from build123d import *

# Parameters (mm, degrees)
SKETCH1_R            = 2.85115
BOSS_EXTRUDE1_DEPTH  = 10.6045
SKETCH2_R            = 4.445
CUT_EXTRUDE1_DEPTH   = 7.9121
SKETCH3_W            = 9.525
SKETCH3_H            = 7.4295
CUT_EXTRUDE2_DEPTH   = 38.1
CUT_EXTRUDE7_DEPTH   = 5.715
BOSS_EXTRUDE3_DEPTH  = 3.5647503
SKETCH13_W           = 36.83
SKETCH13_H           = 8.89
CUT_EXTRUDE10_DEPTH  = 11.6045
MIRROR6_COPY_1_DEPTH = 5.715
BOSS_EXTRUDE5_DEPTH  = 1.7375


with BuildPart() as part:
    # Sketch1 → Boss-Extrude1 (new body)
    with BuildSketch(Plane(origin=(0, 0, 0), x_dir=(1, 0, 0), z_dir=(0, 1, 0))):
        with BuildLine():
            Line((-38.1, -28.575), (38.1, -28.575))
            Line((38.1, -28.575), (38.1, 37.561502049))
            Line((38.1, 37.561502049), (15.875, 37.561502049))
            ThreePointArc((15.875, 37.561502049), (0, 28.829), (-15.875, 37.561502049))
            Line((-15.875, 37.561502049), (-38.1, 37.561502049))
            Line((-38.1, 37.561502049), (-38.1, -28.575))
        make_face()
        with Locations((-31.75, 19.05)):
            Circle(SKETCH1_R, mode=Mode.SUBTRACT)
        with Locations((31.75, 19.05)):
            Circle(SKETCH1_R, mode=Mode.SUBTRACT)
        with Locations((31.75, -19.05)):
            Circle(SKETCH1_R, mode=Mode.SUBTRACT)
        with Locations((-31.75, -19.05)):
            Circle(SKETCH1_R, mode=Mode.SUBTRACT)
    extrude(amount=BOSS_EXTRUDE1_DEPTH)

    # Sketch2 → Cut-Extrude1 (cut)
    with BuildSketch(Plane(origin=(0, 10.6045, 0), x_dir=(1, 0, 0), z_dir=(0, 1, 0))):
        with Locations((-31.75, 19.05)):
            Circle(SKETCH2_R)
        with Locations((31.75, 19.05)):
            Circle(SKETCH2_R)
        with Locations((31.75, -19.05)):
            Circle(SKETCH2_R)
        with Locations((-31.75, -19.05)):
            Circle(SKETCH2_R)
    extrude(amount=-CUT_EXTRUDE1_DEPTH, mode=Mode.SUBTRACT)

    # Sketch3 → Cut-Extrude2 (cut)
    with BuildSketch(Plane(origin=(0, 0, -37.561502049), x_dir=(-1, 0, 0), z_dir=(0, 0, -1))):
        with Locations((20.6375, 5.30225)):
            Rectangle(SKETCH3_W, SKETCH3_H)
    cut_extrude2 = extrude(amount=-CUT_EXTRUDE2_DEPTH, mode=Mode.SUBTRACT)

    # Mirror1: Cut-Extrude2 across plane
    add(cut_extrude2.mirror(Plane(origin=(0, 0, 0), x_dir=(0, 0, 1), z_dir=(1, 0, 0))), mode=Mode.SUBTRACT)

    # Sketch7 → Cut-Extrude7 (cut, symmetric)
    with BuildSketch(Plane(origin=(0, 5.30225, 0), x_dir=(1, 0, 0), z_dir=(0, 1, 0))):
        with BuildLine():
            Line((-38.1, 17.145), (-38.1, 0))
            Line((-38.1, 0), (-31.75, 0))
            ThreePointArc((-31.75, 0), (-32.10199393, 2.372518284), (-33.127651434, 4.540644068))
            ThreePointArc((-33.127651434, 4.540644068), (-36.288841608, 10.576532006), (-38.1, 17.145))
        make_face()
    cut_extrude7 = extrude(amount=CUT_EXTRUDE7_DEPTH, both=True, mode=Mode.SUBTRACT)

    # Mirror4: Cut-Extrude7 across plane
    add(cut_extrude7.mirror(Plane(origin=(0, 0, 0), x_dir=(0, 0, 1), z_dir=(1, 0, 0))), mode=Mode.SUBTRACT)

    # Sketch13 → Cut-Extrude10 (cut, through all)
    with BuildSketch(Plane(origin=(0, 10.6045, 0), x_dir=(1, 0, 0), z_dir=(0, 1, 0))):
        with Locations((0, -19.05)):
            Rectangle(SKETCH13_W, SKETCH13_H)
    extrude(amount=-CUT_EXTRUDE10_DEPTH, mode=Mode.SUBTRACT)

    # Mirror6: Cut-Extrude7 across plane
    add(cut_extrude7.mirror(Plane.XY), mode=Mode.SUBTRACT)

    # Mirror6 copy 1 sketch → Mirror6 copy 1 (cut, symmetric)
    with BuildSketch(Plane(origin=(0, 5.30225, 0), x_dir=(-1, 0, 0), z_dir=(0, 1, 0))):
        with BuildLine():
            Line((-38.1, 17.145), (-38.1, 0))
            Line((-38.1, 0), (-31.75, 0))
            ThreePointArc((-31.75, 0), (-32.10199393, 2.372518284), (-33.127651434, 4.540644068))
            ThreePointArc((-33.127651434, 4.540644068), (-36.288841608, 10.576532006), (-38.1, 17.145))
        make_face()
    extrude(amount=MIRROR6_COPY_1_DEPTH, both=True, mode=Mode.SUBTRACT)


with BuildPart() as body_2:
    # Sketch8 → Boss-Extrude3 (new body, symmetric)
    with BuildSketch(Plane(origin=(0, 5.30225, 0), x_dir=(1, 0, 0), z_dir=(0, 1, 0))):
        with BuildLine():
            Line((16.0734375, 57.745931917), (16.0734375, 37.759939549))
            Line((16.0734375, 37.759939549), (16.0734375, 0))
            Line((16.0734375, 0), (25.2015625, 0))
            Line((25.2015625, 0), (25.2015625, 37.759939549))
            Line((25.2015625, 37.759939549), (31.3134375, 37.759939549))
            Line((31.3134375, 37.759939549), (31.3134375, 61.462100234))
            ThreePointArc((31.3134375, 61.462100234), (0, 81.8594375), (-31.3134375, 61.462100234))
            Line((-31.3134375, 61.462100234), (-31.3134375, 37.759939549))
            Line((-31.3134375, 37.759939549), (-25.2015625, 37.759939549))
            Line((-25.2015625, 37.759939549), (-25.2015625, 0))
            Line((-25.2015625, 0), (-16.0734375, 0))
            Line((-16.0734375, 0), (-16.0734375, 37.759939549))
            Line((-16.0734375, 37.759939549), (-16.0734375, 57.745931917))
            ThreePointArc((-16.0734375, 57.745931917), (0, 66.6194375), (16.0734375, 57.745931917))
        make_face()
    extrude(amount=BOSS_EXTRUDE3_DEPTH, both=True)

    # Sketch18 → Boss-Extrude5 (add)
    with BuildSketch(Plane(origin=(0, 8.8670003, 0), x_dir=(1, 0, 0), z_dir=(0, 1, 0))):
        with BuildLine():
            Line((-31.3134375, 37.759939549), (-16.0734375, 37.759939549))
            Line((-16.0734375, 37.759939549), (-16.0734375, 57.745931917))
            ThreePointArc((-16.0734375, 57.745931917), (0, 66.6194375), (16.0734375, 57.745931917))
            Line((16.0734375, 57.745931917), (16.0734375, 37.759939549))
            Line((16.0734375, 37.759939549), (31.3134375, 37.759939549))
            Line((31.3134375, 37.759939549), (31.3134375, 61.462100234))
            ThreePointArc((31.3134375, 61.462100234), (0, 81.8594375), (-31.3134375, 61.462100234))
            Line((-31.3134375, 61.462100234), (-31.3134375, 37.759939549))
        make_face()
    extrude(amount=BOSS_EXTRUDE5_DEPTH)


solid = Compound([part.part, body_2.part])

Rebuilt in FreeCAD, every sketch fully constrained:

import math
import FreeCAD as App
import Part
import Sketcher

V = App.Vector
Q = App.Units.Quantity

doc = App.newDocument("Part")
body = doc.addObject("PartDesign::Body", "Body")

sketch1 = doc.addObject("Sketcher::SketchObject", "Sketch")
body.addObject(sketch1)
sketch1.AttachmentSupport = (doc.XZ_Plane, [""])
sketch1.MapMode = "FlatFace"
sketch1.addGeometry(Part.LineSegment(V(-38.1, 28.6, 0), V(38.1, 28.6, 0)), False)
sketch1.addGeometry(Part.LineSegment(V(38.1, 28.6, 0), V(38.1, -37.6, 0)), False)
sketch1.addGeometry(Part.LineSegment(V(38.1, -37.6, 0), V(15.9, -37.6, 0)), False)
sketch1.addGeometry(Part.ArcOfCircle(Part.Circle(V(0, -47.6, 0), V(0, 0, 1), 18.8), math.radians(32), math.radians(148)), False)
sketch1.addGeometry(Part.LineSegment(V(-15.9, -37.6, 0), V(-38.1, -37.6, 0)), False)
sketch1.addGeometry(Part.LineSegment(V(-38.1, -37.6, 0), V(-38.1, 28.6, 0)), False)
sketch1.addGeometry(Part.Circle(V(-31.8, 19.1, 0), V(0, 0, 1), 2.9), False)
sketch1.addGeometry(Part.Circle(V(31.8, 19.1, 0), V(0, 0, 1), 2.9), False)
sketch1.addGeometry(Part.Circle(V(-31.8, -19.1, 0), V(0, 0, 1), 2.9), False)
sketch1.addGeometry(Part.Circle(V(31.8, -19.1, 0), V(0, 0, 1), 2.9), False)
sketch1.addConstraint(Sketcher.Constraint("Coincident", 0, 2, 1, 1))
sketch1.addConstraint(Sketcher.Constraint("Coincident", 1, 2, 2, 1))
sketch1.addConstraint(Sketcher.Constraint("Coincident", 2, 2, 3, 1))
sketch1.addConstraint(Sketcher.Constraint("Coincident", 3, 2, 4, 1))
sketch1.addConstraint(Sketcher.Constraint("Coincident", 4, 2, 5, 1))
sketch1.addConstraint(Sketcher.Constraint("Coincident", 5, 2, 0, 1))
sketch1.addConstraint(Sketcher.Constraint("Horizontal", 0))
sketch1.addConstraint(Sketcher.Constraint("Vertical", 1))
sketch1.addConstraint(Sketcher.Constraint("Horizontal", 2))
sketch1.addConstraint(Sketcher.Constraint("Horizontal", 4))
sketch1.addConstraint(Sketcher.Constraint("Vertical", 5))
sketch1.addConstraint(Sketcher.Constraint("Equal", 6, 7))
sketch1.addConstraint(Sketcher.Constraint("Equal", 7, 8))
sketch1.addConstraint(Sketcher.Constraint("Equal", 8, 9))
sketch1.addConstraint(Sketcher.Constraint("Symmetric", 7, 3, 8, 3, -1, 1))
sketch1.addConstraint(Sketcher.Constraint("Symmetric", 6, 3, 9, 3, -1, 1))
sketch1.addConstraint(Sketcher.Constraint("Symmetric", 6, 3, 7, 3, -2))
sketch1.addConstraint(Sketcher.Constraint("Symmetric", 2, 2, 3, 2, -2))
sketch1.addConstraint(Sketcher.Constraint("Equal", 2, 4))
sketch1.addConstraint(Sketcher.Constraint("DistanceX", 0, 1, 0, 2, Q("3 in")))
sketch1.addConstraint(Sketcher.Constraint("Radius", 3, Q("0.74 in")))
sketch1.addConstraint(Sketcher.Constraint("DistanceY", 3, 3, 0, 2, Q("3 in")))
sketch1.addConstraint(Sketcher.Constraint("Diameter", 6, Q("0.2245 in")))
sketch1.addConstraint(Sketcher.Constraint("DistanceX", 6, 3, 7, 3, Q("2.5 in")))
sketch1.addConstraint(Sketcher.Constraint("DistanceY", 8, 3, 6, 3, Q("1.5 in")))
sketch1.addConstraint(Sketcher.Constraint("DistanceX", 2, 2, 2, 1, Q("0.875 in")))
sketch1.addConstraint(Sketcher.Constraint("DistanceY", 3, 3, -1, 1, Q("1.875 in")))
pad1 = doc.addObject("PartDesign::Pad", "Pad")
body.addObject(pad1)
pad1.Profile = sketch1
pad1.Length = Q("0.4175 in")
pad1.Reversed = True

sketch2 = doc.addObject("Sketcher::SketchObject", "Sketch001")
body.addObject(sketch2)
sketch2.AttachmentSupport = (doc.XZ_Plane, [""])
sketch2.MapMode = "FlatFace"
sketch2.AttachmentOffset = App.Placement(V(0, 0, -0.4175 * 25.4), App.Rotation())
sketch2.addGeometry(Part.Circle(V(-31.8, -19.1, 0), V(0, 0, 1), 4.4), False)
sketch2.addGeometry(Part.Circle(V(31.8, -19.1, 0), V(0, 0, 1), 4.4), False)
sketch2.addGeometry(Part.Circle(V(31.8, 19.1, 0), V(0, 0, 1), 4.4), False)
sketch2.addGeometry(Part.Circle(V(-31.8, 19.1, 0), V(0, 0, 1), 4.4), False)
sketch2.addConstraint(Sketcher.Constraint("Equal", 0, 1))
sketch2.addConstraint(Sketcher.Constraint("Equal", 1, 2))
sketch2.addConstraint(Sketcher.Constraint("Equal", 2, 3))
sketch2.addConstraint(Sketcher.Constraint("Symmetric", 0, 3, 2, 3, -1, 1))
sketch2.addConstraint(Sketcher.Constraint("Symmetric", 1, 3, 3, 3, -1, 1))
sketch2.addConstraint(Sketcher.Constraint("Symmetric", 0, 3, 1, 3, -2))
sketch2.addConstraint(Sketcher.Constraint("Diameter", 0, Q("0.35 in")))
sketch2.addConstraint(Sketcher.Constraint("DistanceX", 0, 3, 1, 3, Q("2.5 in")))
sketch2.addConstraint(Sketcher.Constraint("DistanceY", 1, 3, 2, 3, Q("1.5 in")))
pocket1 = doc.addObject("PartDesign::Pocket", "Pocket")
body.addObject(pocket1)
pocket1.Profile = sketch2
pocket1.Length = Q("0.3115 in")
pocket1.Reversed = True

sketch3 = doc.addObject("Sketcher::SketchObject", "Sketch002")
body.addObject(sketch3)
sketch3.AttachmentSupport = (doc.XY_Plane, [""])
sketch3.MapMode = "FlatFace"
sketch3.AttachmentOffset = App.Placement(V(0, 0, -37.561502), App.Rotation())
sketch3.addGeometry(Part.LineSegment(V(-16, 9, 0), V(-16, 2, 0)), False)
sketch3.addGeometry(Part.LineSegment(V(-16, 2, 0), V(-25, 2, 0)), False)
sketch3.addGeometry(Part.LineSegment(V(-25, 2, 0), V(-25, 9, 0)), False)
sketch3.addGeometry(Part.LineSegment(V(-25, 9, 0), V(-16, 9, 0)), False)
sketch3.addConstraint(Sketcher.Constraint("Coincident", 0, 2, 1, 1))
sketch3.addConstraint(Sketcher.Constraint("Coincident", 1, 2, 2, 1))
sketch3.addConstraint(Sketcher.Constraint("Coincident", 2, 2, 3, 1))
sketch3.addConstraint(Sketcher.Constraint("Coincident", 3, 2, 0, 1))
sketch3.addConstraint(Sketcher.Constraint("Vertical", 0))
sketch3.addConstraint(Sketcher.Constraint("Horizontal", 1))
sketch3.addConstraint(Sketcher.Constraint("Vertical", 2))
sketch3.addConstraint(Sketcher.Constraint("Horizontal", 3))
sketch3.addConstraint(Sketcher.Constraint("DistanceX", 1, 2, -1, 1, Q("1 in")))
sketch3.addConstraint(Sketcher.Constraint("DistanceX", 1, 2, 1, 1, Q("0.375 in")))
sketch3.addConstraint(Sketcher.Constraint("DistanceY", 0, 2, 0, 1, Q("0.2925 in")))
sketch3.addConstraint(Sketcher.Constraint("DistanceY", -1, 1, 0, 2, Q("0.0625 in")))
pocket2 = doc.addObject("PartDesign::Pocket", "Pocket001")
body.addObject(pocket2)
pocket2.Profile = sketch3
pocket2.Length = Q("1.5 in")
pocket2.Reversed = True
doc.recompute()

mirrored = doc.addObject("PartDesign::Mirrored", "Mirrored")
body.addObject(mirrored)
mirrored.Originals = [pocket2]
mirrored.MirrorPlane = (doc.YZ_Plane, [""])
body.Tip = mirrored

sketch4 = doc.addObject("Sketcher::SketchObject", "Sketch003")
body.addObject(sketch4)
sketch4.AttachmentSupport = (doc.XZ_Plane, [""])
sketch4.MapMode = "FlatFace"
sketch4.AttachmentOffset = App.Placement(V(0, 0, -5.30225), App.Rotation())
sketch4.addGeometry(Part.LineSegment(V(-38.1, -17.1, 0), V(-38.1, 0, 0)), False)
sketch4.addGeometry(Part.LineSegment(V(-38.1, 0, 0), V(-31.8, 0, 0)), False)
sketch4.addGeometry(Part.ArcOfCircle(Part.Circle(V(-39.9, 0, 0), V(0, 0, 1), 8.2), math.radians(-34), math.radians(0)), False)
sketch4.addGeometry(Part.ArcOfCircle(Part.Circle(V(-6.5, -22.3, 0), V(0, 0, 1), 32), math.radians(146), math.radians(171)), False)
sketch4.addConstraint(Sketcher.Constraint("Coincident", 0, 2, 1, 1))
sketch4.addConstraint(Sketcher.Constraint("Coincident", 1, 2, 2, 2))
sketch4.addConstraint(Sketcher.Constraint("Tangent", 2, 1, 3, 1))
sketch4.addConstraint(Sketcher.Constraint("Coincident", 3, 2, 0, 1))
sketch4.addConstraint(Sketcher.Constraint("Vertical", 0))
sketch4.addConstraint(Sketcher.Constraint("Horizontal", 1))
sketch4.addConstraint(Sketcher.Constraint("PointOnObject", 2, 3, -1))
sketch4.addConstraint(Sketcher.Constraint("PointOnObject", 0, 2, -1))
sketch4.addConstraint(Sketcher.Constraint("DistanceX", 1, 1, 1, 2, Q("0.25 in")))
sketch4.addConstraint(Sketcher.Constraint("DistanceX", 0, 2, -1, 1, Q("1.5 in")))
sketch4.addConstraint(Sketcher.Constraint("DistanceY", 0, 1, 0, 2, Q("0.675 in")))
sketch4.addConstraint(Sketcher.Constraint("Radius", 2, 8.17165))
sketch4.addConstraint(Sketcher.Constraint("Radius", 3, 31.988945))
pocket3 = doc.addObject("PartDesign::Pocket", "Pocket002")
body.addObject(pocket3)
pocket3.Profile = sketch4
pocket3.Length = Q("0.45 in")
pocket3.Midplane = True
doc.recompute()

mirrored2 = doc.addObject("PartDesign::Mirrored", "Mirrored001")
body.addObject(mirrored2)
mirrored2.Originals = [pocket3]
mirrored2.MirrorPlane = (doc.YZ_Plane, [""])
body.Tip = mirrored2

sketch5 = doc.addObject("Sketcher::SketchObject", "Sketch004")
body.addObject(sketch5)
sketch5.AttachmentSupport = (doc.XZ_Plane, [""])
sketch5.MapMode = "FlatFace"
sketch5.AttachmentOffset = App.Placement(V(0, 0, -0.4175 * 25.4), App.Rotation())
sketch5.addGeometry(Part.LineSegment(V(-18, 15, 0), V(-18, 23, 0)), False)
sketch5.addGeometry(Part.LineSegment(V(-18, 23, 0), V(18, 23, 0)), False)
sketch5.addGeometry(Part.LineSegment(V(18, 23, 0), V(18, 15, 0)), False)
sketch5.addGeometry(Part.LineSegment(V(18, 15, 0), V(-18, 15, 0)), False)
sketch5.addConstraint(Sketcher.Constraint("Coincident", 0, 2, 1, 1))
sketch5.addConstraint(Sketcher.Constraint("Coincident", 1, 2, 2, 1))
sketch5.addConstraint(Sketcher.Constraint("Coincident", 2, 2, 3, 1))
sketch5.addConstraint(Sketcher.Constraint("Coincident", 3, 2, 0, 1))
sketch5.addConstraint(Sketcher.Constraint("Vertical", 0))
sketch5.addConstraint(Sketcher.Constraint("Horizontal", 1))
sketch5.addConstraint(Sketcher.Constraint("Vertical", 2))
sketch5.addConstraint(Sketcher.Constraint("Horizontal", 3))
sketch5.addConstraint(Sketcher.Constraint("DistanceX", 1, 1, 1, 2, Q("1.45 in")))
sketch5.addConstraint(Sketcher.Constraint("DistanceY", 0, 1, 0, 2, Q("0.35 in")))
sketch5.addConstraint(Sketcher.Constraint("DistanceX", 0, 2, -1, 1, Q("0.725 in")))
sketch5.addConstraint(Sketcher.Constraint("DistanceY", -1, 1, 0, 2, Q("0.925 in")))
pocket4 = doc.addObject("PartDesign::Pocket", "Pocket003")
body.addObject(pocket4)
pocket4.Profile = sketch5
pocket4.Type = "ThroughAll"
pocket4.Reversed = True
doc.recompute()

mirrored3 = doc.addObject("PartDesign::Mirrored", "Mirrored002")
body.addObject(mirrored3)
mirrored3.Originals = [pocket3]
mirrored3.MirrorPlane = (doc.XY_Plane, [""])
body.Tip = mirrored3

sketch6 = doc.addObject("Sketcher::SketchObject", "Sketch005")
body.addObject(sketch6)
sketch6.AttachmentSupport = (doc.XZ_Plane, [""])
sketch6.MapMode = "FlatFace"
sketch6.AttachmentOffset = App.Placement(V(0, 0, -5.30225), App.Rotation())
sketch6.addGeometry(Part.LineSegment(V(38.1, 17.1, 0), V(38.1, 0, 0)), False)
sketch6.addGeometry(Part.LineSegment(V(38.1, 0, 0), V(31.8, 0, 0)), False)
sketch6.addGeometry(Part.ArcOfCircle(Part.Circle(V(39.9, 0, 0), V(0, 0, 1), 8.2), math.radians(146), math.radians(180)), False)
sketch6.addGeometry(Part.ArcOfCircle(Part.Circle(V(6.5, 22.3, 0), V(0, 0, 1), 32), math.radians(-34), math.radians(-9)), False)
sketch6.addConstraint(Sketcher.Constraint("Coincident", 0, 2, 1, 1))
sketch6.addConstraint(Sketcher.Constraint("Coincident", 1, 2, 2, 2))
sketch6.addConstraint(Sketcher.Constraint("Tangent", 2, 1, 3, 1))
sketch6.addConstraint(Sketcher.Constraint("Coincident", 3, 2, 0, 1))
sketch6.addConstraint(Sketcher.Constraint("Vertical", 0))
sketch6.addConstraint(Sketcher.Constraint("Horizontal", 1))
sketch6.addConstraint(Sketcher.Constraint("PointOnObject", 2, 3, -1))
sketch6.addConstraint(Sketcher.Constraint("PointOnObject", 0, 2, -1))
sketch6.addConstraint(Sketcher.Constraint("DistanceX", 1, 2, 1, 1, Q("0.25 in")))
sketch6.addConstraint(Sketcher.Constraint("DistanceX", -1, 1, 0, 2, Q("1.5 in")))
sketch6.addConstraint(Sketcher.Constraint("DistanceY", 0, 2, 0, 1, Q("0.675 in")))
sketch6.addConstraint(Sketcher.Constraint("Radius", 2, 8.17165))
sketch6.addConstraint(Sketcher.Constraint("Radius", 3, 31.988945))
pocket5 = doc.addObject("PartDesign::Pocket", "Pocket004")
body.addObject(pocket5)
pocket5.Profile = sketch6
pocket5.Length = Q("0.45 in")
pocket5.Midplane = True
body2 = doc.addObject("PartDesign::Body", "Body001")

sketch7 = doc.addObject("Sketcher::SketchObject", "Sketch006")
body2.addObject(sketch7)
sketch7.AttachmentSupport = (doc.getObject("XZ_Plane001"), [""])
sketch7.MapMode = "FlatFace"
sketch7.AttachmentOffset = App.Placement(V(0, 0, -5.30225), App.Rotation())
sketch7.addGeometry(Part.LineSegment(V(16, -58, 0), V(16, 0, 0)), False)
sketch7.addGeometry(Part.LineSegment(V(16, 0, 0), V(25, 0, 0)), False)
sketch7.addGeometry(Part.LineSegment(V(25, 0, 0), V(25, -38, 0)), False)
sketch7.addGeometry(Part.LineSegment(V(25, -38, 0), V(31, -38, 0)), False)
sketch7.addGeometry(Part.LineSegment(V(31, -38, 0), V(31, -61, 0)), False)
sketch7.addGeometry(Part.ArcOfCircle(Part.Circle(V(0, -48, 0), V(0, 0, 1), 34), math.radians(-156), math.radians(-24)), False)
sketch7.addGeometry(Part.LineSegment(V(-31, -61, 0), V(-31, -38, 0)), False)
sketch7.addGeometry(Part.LineSegment(V(-31, -38, 0), V(-25, -38, 0)), False)
sketch7.addGeometry(Part.LineSegment(V(-25, -38, 0), V(-25, 0, 0)), False)
sketch7.addGeometry(Part.LineSegment(V(-25, 0, 0), V(-16, 0, 0)), False)
sketch7.addGeometry(Part.LineSegment(V(-16, 0, 0), V(-16, -58, 0)), False)
sketch7.addGeometry(Part.ArcOfCircle(Part.Circle(V(0, -48, 0), V(0, 0, 1), 19), math.radians(-148), math.radians(-32)), False)
sketch7.addConstraint(Sketcher.Constraint("Coincident", 0, 2, 1, 1))
sketch7.addConstraint(Sketcher.Constraint("Coincident", 1, 2, 2, 1))
sketch7.addConstraint(Sketcher.Constraint("Coincident", 2, 2, 3, 1))
sketch7.addConstraint(Sketcher.Constraint("Coincident", 3, 2, 4, 1))
sketch7.addConstraint(Sketcher.Constraint("Coincident", 4, 2, 5, 2))
sketch7.addConstraint(Sketcher.Constraint("Coincident", 5, 1, 6, 1))
sketch7.addConstraint(Sketcher.Constraint("Coincident", 6, 2, 7, 1))
sketch7.addConstraint(Sketcher.Constraint("Coincident", 7, 2, 8, 1))
sketch7.addConstraint(Sketcher.Constraint("Coincident", 8, 2, 9, 1))
sketch7.addConstraint(Sketcher.Constraint("Coincident", 9, 2, 10, 1))
sketch7.addConstraint(Sketcher.Constraint("Coincident", 10, 2, 11, 1))
sketch7.addConstraint(Sketcher.Constraint("Coincident", 11, 2, 0, 1))
sketch7.addConstraint(Sketcher.Constraint("Vertical", 0))
sketch7.addConstraint(Sketcher.Constraint("Horizontal", 1))
sketch7.addConstraint(Sketcher.Constraint("Vertical", 2))
sketch7.addConstraint(Sketcher.Constraint("Horizontal", 3))
sketch7.addConstraint(Sketcher.Constraint("Vertical", 4))
sketch7.addConstraint(Sketcher.Constraint("Vertical", 6))
sketch7.addConstraint(Sketcher.Constraint("Horizontal", 7))
sketch7.addConstraint(Sketcher.Constraint("Vertical", 8))
sketch7.addConstraint(Sketcher.Constraint("Horizontal", 9))
sketch7.addConstraint(Sketcher.Constraint("Vertical", 10))
sketch7.addConstraint(Sketcher.Constraint("Coincident", 11, 3, 5, 3))
sketch7.addConstraint(Sketcher.Constraint("Symmetric", 1, 2, 8, 2, -1, 1))
sketch7.addConstraint(Sketcher.Constraint("Symmetric", 4, 2, 5, 1, -2))
sketch7.addConstraint(Sketcher.Constraint("Symmetric", 0, 2, 9, 2, -2))
sketch7.addConstraint(Sketcher.Constraint("Horizontal", 3, 2, 6, 2))
sketch7.addConstraint(Sketcher.Constraint("DistanceX", 0, 2, 3, 2, Q("0.6 in")))
sketch7.addConstraint(Sketcher.Constraint("DistanceX", 1, 1, 1, 2, Q("0.359375 in")))
sketch7.addConstraint(Sketcher.Constraint("DistanceY", 5, 3, -1, 1, Q("1.875 in")))
sketch7.addConstraint(Sketcher.Constraint("DistanceX", 5, 1, 2, 2, Q("2.225 in")))
sketch7.addConstraint(Sketcher.Constraint("Radius", 5, 34.234437))
sketch7.addConstraint(Sketcher.Constraint("Radius", 11, 18.994438))
sketch7.addConstraint(Sketcher.Constraint("DistanceY", 2, 2, 2, 1, 37.75994))
pad2 = doc.addObject("PartDesign::Pad", "Pad001")
body2.addObject(pad2)
pad2.Profile = sketch7
pad2.Length = 7.129501
pad2.Midplane = True

sketch8 = doc.addObject("Sketcher::SketchObject", "Sketch007")
body2.addObject(sketch8)
sketch8.AttachmentSupport = (doc.getObject("XZ_Plane001"), [""])
sketch8.MapMode = "FlatFace"
sketch8.AttachmentOffset = App.Placement(V(0, 0, -8.867), App.Rotation())
sketch8.addGeometry(Part.LineSegment(V(-31, -38, 0), V(-16, -38, 0)), False)
sketch8.addGeometry(Part.LineSegment(V(-16, -38, 0), V(-16, -58, 0)), False)
sketch8.addGeometry(Part.ArcOfCircle(Part.Circle(V(0, -48, 0), V(0, 0, 1), 19), math.radians(-148), math.radians(-32)), False)
sketch8.addGeometry(Part.LineSegment(V(16, -58, 0), V(16, -38, 0)), False)
sketch8.addGeometry(Part.LineSegment(V(16, -38, 0), V(31, -38, 0)), False)
sketch8.addGeometry(Part.LineSegment(V(31, -38, 0), V(31, -61, 0)), False)
sketch8.addGeometry(Part.ArcOfCircle(Part.Circle(V(0, -48, 0), V(0, 0, 1), 34), math.radians(-156), math.radians(-24)), False)
sketch8.addGeometry(Part.LineSegment(V(-31, -61, 0), V(-31, -38, 0)), False)
sketch8.addConstraint(Sketcher.Constraint("Coincident", 0, 2, 1, 1))
sketch8.addConstraint(Sketcher.Constraint("Coincident", 1, 2, 2, 1))
sketch8.addConstraint(Sketcher.Constraint("Coincident", 2, 2, 3, 1))
sketch8.addConstraint(Sketcher.Constraint("Coincident", 3, 2, 4, 1))
sketch8.addConstraint(Sketcher.Constraint("Coincident", 4, 2, 5, 1))
sketch8.addConstraint(Sketcher.Constraint("Coincident", 5, 2, 6, 2))
sketch8.addConstraint(Sketcher.Constraint("Coincident", 6, 1, 7, 1))
sketch8.addConstraint(Sketcher.Constraint("Coincident", 7, 2, 0, 1))
sketch8.addConstraint(Sketcher.Constraint("Horizontal", 0))
sketch8.addConstraint(Sketcher.Constraint("Vertical", 1))
sketch8.addConstraint(Sketcher.Constraint("Vertical", 3))
sketch8.addConstraint(Sketcher.Constraint("Horizontal", 4))
sketch8.addConstraint(Sketcher.Constraint("Vertical", 5))
sketch8.addConstraint(Sketcher.Constraint("Vertical", 7))
sketch8.addConstraint(Sketcher.Constraint("Coincident", 6, 3, 2, 3))
sketch8.addConstraint(Sketcher.Constraint("Symmetric", 1, 2, 2, 2, -2))
sketch8.addConstraint(Sketcher.Constraint("Symmetric", 4, 2, 7, 2, -2))
sketch8.addConstraint(Sketcher.Constraint("DistanceX", 0, 1, 0, 2, Q("0.6 in")))
sketch8.addConstraint(Sketcher.Constraint("DistanceY", 2, 3, -1, 1, Q("1.875 in")))
sketch8.addConstraint(Sketcher.Constraint("DistanceX", 1, 2, 2, 2, Q("1.265625 in")))
sketch8.addConstraint(Sketcher.Constraint("Radius", 2, 18.994438))
sketch8.addConstraint(Sketcher.Constraint("Radius", 6, 34.234437))
sketch8.addConstraint(Sketcher.Constraint("DistanceY", 5, 2, 5, 1, 23.702161))
pad3 = doc.addObject("PartDesign::Pad", "Pad002")
body2.addObject(pad3)
pad3.Profile = sketch8
pad3.Length = 1.7375
pad3.Reversed = True

doc.recompute()
